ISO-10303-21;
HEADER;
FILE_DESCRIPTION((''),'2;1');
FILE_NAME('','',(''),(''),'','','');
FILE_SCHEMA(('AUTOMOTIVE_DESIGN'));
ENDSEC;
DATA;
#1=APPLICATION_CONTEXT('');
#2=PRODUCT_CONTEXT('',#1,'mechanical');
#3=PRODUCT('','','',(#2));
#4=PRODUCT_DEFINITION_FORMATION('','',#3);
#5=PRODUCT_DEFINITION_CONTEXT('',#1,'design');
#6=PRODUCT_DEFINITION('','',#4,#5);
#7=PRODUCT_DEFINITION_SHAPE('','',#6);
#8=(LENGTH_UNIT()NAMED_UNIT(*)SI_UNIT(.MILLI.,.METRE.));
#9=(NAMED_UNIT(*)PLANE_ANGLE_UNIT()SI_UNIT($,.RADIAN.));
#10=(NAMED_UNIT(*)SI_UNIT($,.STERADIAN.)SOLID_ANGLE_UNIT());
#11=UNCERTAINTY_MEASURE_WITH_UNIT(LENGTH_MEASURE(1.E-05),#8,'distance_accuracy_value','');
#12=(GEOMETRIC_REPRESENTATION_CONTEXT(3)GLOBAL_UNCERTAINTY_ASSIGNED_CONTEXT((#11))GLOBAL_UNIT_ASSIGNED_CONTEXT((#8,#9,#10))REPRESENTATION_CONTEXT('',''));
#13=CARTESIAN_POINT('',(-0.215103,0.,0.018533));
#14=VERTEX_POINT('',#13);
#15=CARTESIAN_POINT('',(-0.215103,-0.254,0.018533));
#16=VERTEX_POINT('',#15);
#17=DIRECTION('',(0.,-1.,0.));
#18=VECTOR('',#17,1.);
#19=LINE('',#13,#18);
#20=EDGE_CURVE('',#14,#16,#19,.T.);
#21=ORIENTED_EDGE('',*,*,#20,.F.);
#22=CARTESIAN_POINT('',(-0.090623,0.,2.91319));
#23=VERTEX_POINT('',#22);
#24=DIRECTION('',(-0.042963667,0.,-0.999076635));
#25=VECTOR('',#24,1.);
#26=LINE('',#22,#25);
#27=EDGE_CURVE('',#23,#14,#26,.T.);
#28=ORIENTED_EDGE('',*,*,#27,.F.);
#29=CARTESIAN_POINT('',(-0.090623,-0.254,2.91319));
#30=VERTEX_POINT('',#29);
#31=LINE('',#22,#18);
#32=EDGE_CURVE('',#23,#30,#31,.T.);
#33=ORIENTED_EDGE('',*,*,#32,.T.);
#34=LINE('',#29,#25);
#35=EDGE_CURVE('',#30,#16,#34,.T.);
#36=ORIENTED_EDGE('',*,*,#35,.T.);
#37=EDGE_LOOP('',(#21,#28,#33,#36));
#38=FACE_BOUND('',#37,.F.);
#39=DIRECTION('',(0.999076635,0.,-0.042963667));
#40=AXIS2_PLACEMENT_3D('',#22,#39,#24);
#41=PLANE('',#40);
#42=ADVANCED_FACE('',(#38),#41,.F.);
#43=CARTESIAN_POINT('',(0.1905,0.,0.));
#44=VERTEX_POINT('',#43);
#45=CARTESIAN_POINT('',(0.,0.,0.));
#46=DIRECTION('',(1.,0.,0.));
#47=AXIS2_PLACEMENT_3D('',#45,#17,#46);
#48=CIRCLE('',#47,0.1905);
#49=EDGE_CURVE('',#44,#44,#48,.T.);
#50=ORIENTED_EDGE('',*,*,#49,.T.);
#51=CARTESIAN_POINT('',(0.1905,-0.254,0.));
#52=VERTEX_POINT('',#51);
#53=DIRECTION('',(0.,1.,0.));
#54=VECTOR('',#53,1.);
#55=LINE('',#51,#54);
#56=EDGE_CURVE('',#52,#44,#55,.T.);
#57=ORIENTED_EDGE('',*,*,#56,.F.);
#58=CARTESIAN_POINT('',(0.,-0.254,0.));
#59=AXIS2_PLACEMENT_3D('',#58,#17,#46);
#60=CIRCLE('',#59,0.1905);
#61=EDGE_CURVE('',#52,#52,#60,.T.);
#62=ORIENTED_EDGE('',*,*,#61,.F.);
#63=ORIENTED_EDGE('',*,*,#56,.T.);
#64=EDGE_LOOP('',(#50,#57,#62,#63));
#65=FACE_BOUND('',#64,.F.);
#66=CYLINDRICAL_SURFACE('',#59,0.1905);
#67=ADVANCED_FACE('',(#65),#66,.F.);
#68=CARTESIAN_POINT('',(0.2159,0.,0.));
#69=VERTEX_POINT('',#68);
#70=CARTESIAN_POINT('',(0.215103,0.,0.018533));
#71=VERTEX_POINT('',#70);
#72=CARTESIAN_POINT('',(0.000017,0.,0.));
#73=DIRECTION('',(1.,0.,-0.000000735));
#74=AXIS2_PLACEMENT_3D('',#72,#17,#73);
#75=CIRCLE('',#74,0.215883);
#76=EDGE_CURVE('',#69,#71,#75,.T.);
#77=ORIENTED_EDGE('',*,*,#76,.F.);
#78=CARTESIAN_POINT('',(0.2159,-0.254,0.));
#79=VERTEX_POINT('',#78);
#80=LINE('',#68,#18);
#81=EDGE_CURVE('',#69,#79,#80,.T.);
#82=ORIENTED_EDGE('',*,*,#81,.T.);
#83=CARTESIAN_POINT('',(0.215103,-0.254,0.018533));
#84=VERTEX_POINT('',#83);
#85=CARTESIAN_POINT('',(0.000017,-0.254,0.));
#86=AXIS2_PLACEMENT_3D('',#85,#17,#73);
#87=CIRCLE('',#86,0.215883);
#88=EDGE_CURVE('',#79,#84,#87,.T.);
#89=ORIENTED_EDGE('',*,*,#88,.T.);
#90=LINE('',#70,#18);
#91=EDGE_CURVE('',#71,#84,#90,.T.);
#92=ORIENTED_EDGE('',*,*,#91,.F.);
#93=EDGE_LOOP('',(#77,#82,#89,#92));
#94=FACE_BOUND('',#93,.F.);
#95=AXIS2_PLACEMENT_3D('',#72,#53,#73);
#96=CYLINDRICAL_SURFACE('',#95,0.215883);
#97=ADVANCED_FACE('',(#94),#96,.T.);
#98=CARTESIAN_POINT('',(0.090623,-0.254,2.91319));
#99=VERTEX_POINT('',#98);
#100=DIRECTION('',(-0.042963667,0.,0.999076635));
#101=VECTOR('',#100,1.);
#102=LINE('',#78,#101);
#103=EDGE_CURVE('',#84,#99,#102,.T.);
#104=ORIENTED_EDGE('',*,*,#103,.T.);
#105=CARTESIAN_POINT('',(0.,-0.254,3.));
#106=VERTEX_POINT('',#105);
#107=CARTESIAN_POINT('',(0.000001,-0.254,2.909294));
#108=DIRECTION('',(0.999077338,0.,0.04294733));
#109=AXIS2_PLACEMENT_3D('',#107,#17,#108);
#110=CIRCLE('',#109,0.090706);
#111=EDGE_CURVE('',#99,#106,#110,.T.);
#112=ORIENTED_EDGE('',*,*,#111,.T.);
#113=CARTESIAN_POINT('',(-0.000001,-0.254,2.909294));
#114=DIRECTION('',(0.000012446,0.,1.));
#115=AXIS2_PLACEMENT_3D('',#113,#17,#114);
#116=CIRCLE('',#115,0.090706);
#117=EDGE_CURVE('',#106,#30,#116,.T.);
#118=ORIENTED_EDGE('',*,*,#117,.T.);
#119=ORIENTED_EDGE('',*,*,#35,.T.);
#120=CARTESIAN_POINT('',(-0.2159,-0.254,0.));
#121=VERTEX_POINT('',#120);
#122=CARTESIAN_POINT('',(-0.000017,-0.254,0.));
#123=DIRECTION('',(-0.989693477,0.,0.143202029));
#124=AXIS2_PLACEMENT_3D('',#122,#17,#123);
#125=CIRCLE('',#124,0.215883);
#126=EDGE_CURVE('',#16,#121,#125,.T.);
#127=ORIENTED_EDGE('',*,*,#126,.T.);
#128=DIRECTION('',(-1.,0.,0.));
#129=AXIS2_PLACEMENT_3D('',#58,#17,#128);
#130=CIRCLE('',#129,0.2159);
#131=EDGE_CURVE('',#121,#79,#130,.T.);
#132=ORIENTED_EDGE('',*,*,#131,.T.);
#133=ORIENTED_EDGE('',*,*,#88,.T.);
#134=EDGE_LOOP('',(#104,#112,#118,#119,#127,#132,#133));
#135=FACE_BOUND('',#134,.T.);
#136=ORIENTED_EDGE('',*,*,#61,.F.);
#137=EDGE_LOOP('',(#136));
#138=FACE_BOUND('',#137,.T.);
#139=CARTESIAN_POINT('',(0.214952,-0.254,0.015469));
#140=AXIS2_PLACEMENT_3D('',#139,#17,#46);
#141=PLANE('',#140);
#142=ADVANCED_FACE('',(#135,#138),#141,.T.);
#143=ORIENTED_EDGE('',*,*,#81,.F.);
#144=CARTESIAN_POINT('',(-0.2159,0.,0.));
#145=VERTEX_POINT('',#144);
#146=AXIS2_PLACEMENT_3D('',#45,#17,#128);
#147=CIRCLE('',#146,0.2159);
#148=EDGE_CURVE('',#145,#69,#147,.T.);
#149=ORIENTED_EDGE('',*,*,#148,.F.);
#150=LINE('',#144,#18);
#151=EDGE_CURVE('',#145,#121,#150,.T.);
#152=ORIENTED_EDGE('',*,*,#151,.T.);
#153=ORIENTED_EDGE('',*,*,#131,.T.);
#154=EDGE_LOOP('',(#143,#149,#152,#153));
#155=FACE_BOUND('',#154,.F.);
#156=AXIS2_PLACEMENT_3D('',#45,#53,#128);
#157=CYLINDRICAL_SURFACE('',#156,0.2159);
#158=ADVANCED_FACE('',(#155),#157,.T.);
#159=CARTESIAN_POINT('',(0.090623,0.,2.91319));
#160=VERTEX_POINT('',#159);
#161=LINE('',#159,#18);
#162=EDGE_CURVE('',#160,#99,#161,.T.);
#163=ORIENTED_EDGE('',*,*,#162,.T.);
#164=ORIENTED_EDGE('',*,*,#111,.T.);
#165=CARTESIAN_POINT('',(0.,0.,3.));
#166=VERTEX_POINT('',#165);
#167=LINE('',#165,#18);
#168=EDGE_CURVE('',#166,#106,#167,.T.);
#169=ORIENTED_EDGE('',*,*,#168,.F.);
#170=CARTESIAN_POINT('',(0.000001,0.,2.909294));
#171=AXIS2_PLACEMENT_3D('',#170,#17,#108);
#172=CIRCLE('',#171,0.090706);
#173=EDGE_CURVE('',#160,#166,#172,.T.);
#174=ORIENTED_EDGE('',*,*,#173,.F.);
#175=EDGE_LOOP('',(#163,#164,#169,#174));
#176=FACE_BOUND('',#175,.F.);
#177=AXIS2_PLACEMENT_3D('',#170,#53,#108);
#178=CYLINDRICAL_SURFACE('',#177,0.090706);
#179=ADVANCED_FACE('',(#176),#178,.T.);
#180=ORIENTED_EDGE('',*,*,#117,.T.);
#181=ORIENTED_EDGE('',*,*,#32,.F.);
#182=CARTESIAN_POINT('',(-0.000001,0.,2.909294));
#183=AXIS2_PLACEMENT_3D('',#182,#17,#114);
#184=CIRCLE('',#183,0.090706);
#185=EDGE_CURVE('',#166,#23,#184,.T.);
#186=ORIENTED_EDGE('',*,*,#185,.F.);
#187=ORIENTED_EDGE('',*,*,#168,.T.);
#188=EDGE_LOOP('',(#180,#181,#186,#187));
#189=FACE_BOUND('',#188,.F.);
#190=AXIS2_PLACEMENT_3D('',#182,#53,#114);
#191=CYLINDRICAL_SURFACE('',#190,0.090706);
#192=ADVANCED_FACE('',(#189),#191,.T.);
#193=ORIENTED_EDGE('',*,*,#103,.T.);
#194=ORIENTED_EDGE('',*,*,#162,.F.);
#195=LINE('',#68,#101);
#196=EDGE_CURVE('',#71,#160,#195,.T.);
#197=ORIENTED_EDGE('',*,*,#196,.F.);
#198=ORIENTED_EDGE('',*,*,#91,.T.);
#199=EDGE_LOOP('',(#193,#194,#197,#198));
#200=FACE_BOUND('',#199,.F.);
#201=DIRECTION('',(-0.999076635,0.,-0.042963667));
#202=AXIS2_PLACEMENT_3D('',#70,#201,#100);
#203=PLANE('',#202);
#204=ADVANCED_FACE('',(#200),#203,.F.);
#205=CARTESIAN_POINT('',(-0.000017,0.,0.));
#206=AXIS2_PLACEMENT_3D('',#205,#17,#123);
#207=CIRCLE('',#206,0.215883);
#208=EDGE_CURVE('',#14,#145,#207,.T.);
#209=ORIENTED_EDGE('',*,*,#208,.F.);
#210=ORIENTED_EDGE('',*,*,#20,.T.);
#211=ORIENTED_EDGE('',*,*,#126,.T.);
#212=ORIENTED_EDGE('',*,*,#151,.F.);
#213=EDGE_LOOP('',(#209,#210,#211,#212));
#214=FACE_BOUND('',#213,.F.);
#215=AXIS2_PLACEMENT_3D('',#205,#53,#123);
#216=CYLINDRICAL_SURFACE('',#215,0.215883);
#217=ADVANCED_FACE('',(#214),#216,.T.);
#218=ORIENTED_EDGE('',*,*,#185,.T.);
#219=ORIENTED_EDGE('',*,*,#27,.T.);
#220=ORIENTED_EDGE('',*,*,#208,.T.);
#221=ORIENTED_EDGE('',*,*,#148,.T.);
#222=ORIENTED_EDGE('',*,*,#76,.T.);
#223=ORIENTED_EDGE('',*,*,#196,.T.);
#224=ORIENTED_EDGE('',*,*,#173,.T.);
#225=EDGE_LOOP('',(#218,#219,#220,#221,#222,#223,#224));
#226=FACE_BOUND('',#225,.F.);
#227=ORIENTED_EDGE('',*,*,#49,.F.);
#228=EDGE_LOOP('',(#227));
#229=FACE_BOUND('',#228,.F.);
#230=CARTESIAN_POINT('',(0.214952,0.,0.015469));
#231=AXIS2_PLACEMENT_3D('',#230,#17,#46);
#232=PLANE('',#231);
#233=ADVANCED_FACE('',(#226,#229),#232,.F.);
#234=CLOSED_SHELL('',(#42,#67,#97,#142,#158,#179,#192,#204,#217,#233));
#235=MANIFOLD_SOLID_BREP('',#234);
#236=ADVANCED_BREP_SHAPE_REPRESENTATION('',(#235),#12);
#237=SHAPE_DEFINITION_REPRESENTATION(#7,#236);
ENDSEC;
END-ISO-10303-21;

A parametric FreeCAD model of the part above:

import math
import FreeCAD as App
import Part
import Sketcher
from FreeCAD import Vector
Q = App.Units.Quantity

doc = App.newDocument("Part")
body = doc.addObject("PartDesign::Body", "Body")

# Sketch on XZ plane
sketch1 = body.newObject("Sketcher::SketchObject", "Sketch")
sketch1.AttachmentSupport = (doc.getObject("XZ_Plane"), [""])
sketch1.MapMode = "FlatFace"
sketch1.addGeometry([
    Part.ArcOfCircle(Part.Circle(Vector(-0.000001, 2.909294, 0), Vector(0, 0, 1), 0.090706), math.radians(89.999287), math.radians(177.538542)),  # 0
    Part.LineSegment(Vector(-0.090623, 2.91319, 0), Vector(-0.215103, 0.018533, 0)),  # 1
    Part.ArcOfCircle(Part.Circle(Vector(-0.000017, 0, 0), Vector(0, 0, 1), 0.215883), math.radians(175.075169), math.radians(180.000042)),  # 2
    Part.ArcOfCircle(Part.Circle(Vector(0, 0, 0), Vector(0, 0, 1), 0.2159), math.radians(180), math.radians(360)),  # 3
    Part.ArcOfCircle(Part.Circle(Vector(0.000017, 0, 0), Vector(0, 0, 1), 0.215883), math.radians(-0.000042), math.radians(4.924831)),  # 4
    Part.LineSegment(Vector(0.215103, 0.018533, 0), Vector(0.090623, 2.91319, 0)),  # 5
    Part.ArcOfCircle(Part.Circle(Vector(0.000001, 2.909294, 0), Vector(0, 0, 1), 0.090706), math.radians(2.461458), math.radians(90.000713)),  # 6
], False)
sketch1.addConstraint([
    Sketcher.Constraint("Coincident", 0, 2, 1, 1),
    Sketcher.Constraint("Coincident", 1, 2, 2, 1),
    Sketcher.Constraint("Tangent", 2, 2, 3, 1),
    Sketcher.Constraint("Tangent", 3, 2, 4, 1),
    Sketcher.Constraint("Coincident", 4, 2, 5, 1),
    Sketcher.Constraint("Coincident", 5, 2, 6, 1),
    Sketcher.Constraint("Coincident", 6, 2, 0, 1),
    Sketcher.Constraint("Coincident", 3, 3, -1, 1),
    Sketcher.Constraint("Coincident", 6, 3, 0, 3),
    Sketcher.Constraint("Equal", 2, 4),
    Sketcher.Constraint("Symmetric", 0, 2, 5, 2, -2),
    Sketcher.Constraint("PointOnObject", 2, 2, -1),
    Sketcher.Constraint("PointOnObject", 3, 2, -1),
    Sketcher.Constraint("PointOnObject", 6, 2, -2),
    Sketcher.Constraint("Horizontal", 1, 2, 4, 2),
    Sketcher.Constraint("Radius", 3, Q("0.0085 in")),
    Sketcher.Constraint("Radius", 0, 0.090706),
    Sketcher.Constraint("Radius", 2, 0.215883),
    Sketcher.Constraint("DistanceY", -1, 1, 6, 2, 3.0),
    Sketcher.Constraint("DistanceX", 1, 2, 0, 3, 0.215102),
    Sketcher.Constraint("Distance", 1, 2.897332),
])
pad1 = body.newObject("PartDesign::Pad", "Pad")
pad1.Profile = sketch1
pad1.Length = Q("0.01 in")

# Sketch on XZ plane
sketch2 = body.newObject("Sketcher::SketchObject", "Sketch001")
sketch2.AttachmentSupport = (doc.getObject("XZ_Plane"), [""])
sketch2.MapMode = "FlatFace"
sketch2.AttachmentOffset = App.Placement(Vector(0, 0, 0.01 * 25.4), App.Rotation())
sketch2.addGeometry(Part.Circle(Vector(0, 0, 0), Vector(0, 0, 1), 0.1905), False)
sketch2.addConstraint([
    Sketcher.Constraint("Coincident", 0, 3, -1, 1),
    Sketcher.Constraint("Diameter", 0, Q("0.015 in")),
])
pocket1 = body.newObject("PartDesign::Pocket", "Pocket")
pocket1.Profile = sketch2
pocket1.Type = "ThroughAll"

doc.recompute()
